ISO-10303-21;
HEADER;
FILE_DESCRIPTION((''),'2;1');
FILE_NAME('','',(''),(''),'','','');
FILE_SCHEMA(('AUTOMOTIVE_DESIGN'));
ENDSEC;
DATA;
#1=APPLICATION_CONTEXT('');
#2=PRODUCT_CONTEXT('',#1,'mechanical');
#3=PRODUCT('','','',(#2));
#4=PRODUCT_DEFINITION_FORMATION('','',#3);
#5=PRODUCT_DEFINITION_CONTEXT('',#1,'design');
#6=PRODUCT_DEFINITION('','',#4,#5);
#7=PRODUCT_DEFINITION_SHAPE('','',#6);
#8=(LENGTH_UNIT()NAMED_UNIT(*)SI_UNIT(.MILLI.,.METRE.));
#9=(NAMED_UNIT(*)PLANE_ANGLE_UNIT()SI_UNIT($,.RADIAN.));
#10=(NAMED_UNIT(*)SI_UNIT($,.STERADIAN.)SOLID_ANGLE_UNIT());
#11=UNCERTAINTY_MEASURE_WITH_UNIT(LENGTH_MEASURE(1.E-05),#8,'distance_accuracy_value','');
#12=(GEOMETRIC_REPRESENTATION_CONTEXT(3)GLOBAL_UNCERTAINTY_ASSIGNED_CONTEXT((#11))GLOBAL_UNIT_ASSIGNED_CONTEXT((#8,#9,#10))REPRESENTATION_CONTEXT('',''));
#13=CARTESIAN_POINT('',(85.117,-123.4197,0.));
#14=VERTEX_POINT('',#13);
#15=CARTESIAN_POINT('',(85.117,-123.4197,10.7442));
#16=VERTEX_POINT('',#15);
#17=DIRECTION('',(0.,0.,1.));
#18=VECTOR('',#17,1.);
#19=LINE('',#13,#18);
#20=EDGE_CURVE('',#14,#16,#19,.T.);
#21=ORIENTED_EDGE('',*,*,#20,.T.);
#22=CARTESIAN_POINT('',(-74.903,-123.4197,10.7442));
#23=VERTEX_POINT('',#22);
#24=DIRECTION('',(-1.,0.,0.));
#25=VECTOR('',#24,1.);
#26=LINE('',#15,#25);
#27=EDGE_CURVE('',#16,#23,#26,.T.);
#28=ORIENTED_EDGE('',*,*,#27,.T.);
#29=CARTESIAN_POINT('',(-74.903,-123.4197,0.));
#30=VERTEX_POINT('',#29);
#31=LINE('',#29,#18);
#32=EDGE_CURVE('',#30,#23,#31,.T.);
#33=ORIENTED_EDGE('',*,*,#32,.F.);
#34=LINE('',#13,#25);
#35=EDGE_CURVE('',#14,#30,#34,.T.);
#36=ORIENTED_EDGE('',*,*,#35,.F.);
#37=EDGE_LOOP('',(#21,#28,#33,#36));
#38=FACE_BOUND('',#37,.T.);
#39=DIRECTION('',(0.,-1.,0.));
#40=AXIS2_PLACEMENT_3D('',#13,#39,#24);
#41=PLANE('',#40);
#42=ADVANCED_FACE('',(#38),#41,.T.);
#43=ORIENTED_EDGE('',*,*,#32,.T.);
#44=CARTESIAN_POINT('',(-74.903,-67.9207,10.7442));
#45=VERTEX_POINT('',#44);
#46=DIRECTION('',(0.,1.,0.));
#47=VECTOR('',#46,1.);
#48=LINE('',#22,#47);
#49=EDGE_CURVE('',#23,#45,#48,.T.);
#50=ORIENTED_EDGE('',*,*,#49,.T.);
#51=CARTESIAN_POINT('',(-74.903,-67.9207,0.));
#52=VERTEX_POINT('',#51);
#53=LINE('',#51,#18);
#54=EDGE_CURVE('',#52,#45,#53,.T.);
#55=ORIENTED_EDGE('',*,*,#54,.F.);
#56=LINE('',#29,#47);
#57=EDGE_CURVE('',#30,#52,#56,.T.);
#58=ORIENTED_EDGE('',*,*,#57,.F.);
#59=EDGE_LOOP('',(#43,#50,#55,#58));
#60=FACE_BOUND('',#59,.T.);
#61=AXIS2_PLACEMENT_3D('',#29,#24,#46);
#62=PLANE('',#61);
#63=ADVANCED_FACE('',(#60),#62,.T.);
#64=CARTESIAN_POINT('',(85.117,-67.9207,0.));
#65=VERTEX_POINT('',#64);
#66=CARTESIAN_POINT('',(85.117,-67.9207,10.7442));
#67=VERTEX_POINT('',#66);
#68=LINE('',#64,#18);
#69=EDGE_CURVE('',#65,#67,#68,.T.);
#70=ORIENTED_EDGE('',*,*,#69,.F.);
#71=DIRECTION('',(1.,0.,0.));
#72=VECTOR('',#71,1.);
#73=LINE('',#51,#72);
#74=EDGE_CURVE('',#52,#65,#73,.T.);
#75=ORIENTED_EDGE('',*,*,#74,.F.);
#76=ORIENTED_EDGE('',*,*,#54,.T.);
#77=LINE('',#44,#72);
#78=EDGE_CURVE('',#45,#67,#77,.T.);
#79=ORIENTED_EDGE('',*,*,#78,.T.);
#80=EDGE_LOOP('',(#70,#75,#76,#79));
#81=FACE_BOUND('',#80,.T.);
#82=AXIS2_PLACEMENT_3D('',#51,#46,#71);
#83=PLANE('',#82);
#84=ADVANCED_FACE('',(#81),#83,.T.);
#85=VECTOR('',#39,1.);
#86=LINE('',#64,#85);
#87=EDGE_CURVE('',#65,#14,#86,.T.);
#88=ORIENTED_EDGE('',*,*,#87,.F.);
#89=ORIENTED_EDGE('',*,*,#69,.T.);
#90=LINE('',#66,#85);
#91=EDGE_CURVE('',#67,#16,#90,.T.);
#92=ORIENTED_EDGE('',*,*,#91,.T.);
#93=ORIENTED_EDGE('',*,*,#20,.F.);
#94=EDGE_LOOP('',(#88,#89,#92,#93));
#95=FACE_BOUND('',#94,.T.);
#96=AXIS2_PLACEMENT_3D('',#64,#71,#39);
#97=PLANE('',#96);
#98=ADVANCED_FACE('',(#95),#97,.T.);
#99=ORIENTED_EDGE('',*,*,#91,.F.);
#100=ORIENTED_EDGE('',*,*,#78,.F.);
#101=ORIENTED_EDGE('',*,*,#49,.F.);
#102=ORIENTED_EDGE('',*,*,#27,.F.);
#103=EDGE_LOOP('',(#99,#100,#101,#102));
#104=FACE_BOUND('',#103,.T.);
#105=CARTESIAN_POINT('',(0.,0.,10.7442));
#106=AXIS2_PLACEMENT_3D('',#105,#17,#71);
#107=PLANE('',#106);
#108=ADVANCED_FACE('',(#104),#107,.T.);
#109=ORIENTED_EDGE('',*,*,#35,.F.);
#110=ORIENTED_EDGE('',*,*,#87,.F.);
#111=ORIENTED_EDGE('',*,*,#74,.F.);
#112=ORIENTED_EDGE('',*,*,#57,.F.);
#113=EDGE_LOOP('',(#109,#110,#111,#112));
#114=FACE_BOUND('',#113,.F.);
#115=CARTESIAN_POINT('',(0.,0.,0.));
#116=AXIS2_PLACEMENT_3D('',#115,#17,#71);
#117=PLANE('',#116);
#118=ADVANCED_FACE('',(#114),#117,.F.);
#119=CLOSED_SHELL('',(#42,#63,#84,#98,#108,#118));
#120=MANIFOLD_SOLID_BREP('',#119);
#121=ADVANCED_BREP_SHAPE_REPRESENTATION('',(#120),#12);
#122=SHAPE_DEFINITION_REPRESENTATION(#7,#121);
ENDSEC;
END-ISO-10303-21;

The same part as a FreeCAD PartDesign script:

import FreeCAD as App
import Part
import Sketcher
from FreeCAD import Vector
Q = App.Units.Quantity


def add_polygon(sketch, points):
    """Adds a closed chain of lines whose ends are joined by coincident constraints."""
    first, n = sketch.GeometryCount, len(points)
    for a, b in zip(points, points[1:] + points[:1]):
        sketch.addGeometry(Part.LineSegment(App.Vector(*a, 0), App.Vector(*b, 0)), False)
    for i in range(n):
        sketch.addConstraint(Sketcher.Constraint("Coincident", first + i, 2, first + (i + 1) % n, 1))

doc = App.newDocument("Part")
params = doc.addObject("Spreadsheet::Sheet", "Params")
for row, (alias, value) in enumerate([
    ("sketch1_width", "6.3 in"),
    ("sketch1_height", "2.185 in"),
    ("pad1_length", "0.423 in"),
], start=1):
    params.set(f"A{row}", alias)
    params.set(f"B{row}", "=" + value)
    params.setAlias(f"B{row}", alias)

body = doc.addObject("PartDesign::Body", "Body")

sketch1 = body.newObject("Sketcher::SketchObject", "Sketch")
sketch1.AttachmentSupport = (doc.getObject("XY_Plane"), [""])
sketch1.MapMode = "FlatFace"
add_polygon(sketch1, [(85, -68), (-75, -68), (-75, -123), (85, -123)])
sketch1.addConstraint([
    Sketcher.Constraint("Horizontal", 0),
    Sketcher.Constraint("Vertical", 1),
    Sketcher.Constraint("Horizontal", 2),
    Sketcher.Constraint("Vertical", 3),
    Sketcher.Constraint("DistanceX", 0, 2, 0, 1, Q("6.3 in")),
    Sketcher.Constraint("DistanceY", 1, 2, 1, 1, Q("2.185 in")),
    Sketcher.Constraint("DistanceX", 0, 2, -1, 1, 74.903),
    Sketcher.Constraint("DistanceY", 0, 2, -1, 1, 67.9207),
])
sketch1.setExpression("Constraints[8]", "Params.sketch1_width")
sketch1.setExpression("Constraints[9]", "Params.sketch1_height")
pad1 = body.newObject("PartDesign::Pad", "Pad")
pad1.Profile = sketch1
pad1.setExpression("Length", "Params.pad1_length")

doc.recompute()
